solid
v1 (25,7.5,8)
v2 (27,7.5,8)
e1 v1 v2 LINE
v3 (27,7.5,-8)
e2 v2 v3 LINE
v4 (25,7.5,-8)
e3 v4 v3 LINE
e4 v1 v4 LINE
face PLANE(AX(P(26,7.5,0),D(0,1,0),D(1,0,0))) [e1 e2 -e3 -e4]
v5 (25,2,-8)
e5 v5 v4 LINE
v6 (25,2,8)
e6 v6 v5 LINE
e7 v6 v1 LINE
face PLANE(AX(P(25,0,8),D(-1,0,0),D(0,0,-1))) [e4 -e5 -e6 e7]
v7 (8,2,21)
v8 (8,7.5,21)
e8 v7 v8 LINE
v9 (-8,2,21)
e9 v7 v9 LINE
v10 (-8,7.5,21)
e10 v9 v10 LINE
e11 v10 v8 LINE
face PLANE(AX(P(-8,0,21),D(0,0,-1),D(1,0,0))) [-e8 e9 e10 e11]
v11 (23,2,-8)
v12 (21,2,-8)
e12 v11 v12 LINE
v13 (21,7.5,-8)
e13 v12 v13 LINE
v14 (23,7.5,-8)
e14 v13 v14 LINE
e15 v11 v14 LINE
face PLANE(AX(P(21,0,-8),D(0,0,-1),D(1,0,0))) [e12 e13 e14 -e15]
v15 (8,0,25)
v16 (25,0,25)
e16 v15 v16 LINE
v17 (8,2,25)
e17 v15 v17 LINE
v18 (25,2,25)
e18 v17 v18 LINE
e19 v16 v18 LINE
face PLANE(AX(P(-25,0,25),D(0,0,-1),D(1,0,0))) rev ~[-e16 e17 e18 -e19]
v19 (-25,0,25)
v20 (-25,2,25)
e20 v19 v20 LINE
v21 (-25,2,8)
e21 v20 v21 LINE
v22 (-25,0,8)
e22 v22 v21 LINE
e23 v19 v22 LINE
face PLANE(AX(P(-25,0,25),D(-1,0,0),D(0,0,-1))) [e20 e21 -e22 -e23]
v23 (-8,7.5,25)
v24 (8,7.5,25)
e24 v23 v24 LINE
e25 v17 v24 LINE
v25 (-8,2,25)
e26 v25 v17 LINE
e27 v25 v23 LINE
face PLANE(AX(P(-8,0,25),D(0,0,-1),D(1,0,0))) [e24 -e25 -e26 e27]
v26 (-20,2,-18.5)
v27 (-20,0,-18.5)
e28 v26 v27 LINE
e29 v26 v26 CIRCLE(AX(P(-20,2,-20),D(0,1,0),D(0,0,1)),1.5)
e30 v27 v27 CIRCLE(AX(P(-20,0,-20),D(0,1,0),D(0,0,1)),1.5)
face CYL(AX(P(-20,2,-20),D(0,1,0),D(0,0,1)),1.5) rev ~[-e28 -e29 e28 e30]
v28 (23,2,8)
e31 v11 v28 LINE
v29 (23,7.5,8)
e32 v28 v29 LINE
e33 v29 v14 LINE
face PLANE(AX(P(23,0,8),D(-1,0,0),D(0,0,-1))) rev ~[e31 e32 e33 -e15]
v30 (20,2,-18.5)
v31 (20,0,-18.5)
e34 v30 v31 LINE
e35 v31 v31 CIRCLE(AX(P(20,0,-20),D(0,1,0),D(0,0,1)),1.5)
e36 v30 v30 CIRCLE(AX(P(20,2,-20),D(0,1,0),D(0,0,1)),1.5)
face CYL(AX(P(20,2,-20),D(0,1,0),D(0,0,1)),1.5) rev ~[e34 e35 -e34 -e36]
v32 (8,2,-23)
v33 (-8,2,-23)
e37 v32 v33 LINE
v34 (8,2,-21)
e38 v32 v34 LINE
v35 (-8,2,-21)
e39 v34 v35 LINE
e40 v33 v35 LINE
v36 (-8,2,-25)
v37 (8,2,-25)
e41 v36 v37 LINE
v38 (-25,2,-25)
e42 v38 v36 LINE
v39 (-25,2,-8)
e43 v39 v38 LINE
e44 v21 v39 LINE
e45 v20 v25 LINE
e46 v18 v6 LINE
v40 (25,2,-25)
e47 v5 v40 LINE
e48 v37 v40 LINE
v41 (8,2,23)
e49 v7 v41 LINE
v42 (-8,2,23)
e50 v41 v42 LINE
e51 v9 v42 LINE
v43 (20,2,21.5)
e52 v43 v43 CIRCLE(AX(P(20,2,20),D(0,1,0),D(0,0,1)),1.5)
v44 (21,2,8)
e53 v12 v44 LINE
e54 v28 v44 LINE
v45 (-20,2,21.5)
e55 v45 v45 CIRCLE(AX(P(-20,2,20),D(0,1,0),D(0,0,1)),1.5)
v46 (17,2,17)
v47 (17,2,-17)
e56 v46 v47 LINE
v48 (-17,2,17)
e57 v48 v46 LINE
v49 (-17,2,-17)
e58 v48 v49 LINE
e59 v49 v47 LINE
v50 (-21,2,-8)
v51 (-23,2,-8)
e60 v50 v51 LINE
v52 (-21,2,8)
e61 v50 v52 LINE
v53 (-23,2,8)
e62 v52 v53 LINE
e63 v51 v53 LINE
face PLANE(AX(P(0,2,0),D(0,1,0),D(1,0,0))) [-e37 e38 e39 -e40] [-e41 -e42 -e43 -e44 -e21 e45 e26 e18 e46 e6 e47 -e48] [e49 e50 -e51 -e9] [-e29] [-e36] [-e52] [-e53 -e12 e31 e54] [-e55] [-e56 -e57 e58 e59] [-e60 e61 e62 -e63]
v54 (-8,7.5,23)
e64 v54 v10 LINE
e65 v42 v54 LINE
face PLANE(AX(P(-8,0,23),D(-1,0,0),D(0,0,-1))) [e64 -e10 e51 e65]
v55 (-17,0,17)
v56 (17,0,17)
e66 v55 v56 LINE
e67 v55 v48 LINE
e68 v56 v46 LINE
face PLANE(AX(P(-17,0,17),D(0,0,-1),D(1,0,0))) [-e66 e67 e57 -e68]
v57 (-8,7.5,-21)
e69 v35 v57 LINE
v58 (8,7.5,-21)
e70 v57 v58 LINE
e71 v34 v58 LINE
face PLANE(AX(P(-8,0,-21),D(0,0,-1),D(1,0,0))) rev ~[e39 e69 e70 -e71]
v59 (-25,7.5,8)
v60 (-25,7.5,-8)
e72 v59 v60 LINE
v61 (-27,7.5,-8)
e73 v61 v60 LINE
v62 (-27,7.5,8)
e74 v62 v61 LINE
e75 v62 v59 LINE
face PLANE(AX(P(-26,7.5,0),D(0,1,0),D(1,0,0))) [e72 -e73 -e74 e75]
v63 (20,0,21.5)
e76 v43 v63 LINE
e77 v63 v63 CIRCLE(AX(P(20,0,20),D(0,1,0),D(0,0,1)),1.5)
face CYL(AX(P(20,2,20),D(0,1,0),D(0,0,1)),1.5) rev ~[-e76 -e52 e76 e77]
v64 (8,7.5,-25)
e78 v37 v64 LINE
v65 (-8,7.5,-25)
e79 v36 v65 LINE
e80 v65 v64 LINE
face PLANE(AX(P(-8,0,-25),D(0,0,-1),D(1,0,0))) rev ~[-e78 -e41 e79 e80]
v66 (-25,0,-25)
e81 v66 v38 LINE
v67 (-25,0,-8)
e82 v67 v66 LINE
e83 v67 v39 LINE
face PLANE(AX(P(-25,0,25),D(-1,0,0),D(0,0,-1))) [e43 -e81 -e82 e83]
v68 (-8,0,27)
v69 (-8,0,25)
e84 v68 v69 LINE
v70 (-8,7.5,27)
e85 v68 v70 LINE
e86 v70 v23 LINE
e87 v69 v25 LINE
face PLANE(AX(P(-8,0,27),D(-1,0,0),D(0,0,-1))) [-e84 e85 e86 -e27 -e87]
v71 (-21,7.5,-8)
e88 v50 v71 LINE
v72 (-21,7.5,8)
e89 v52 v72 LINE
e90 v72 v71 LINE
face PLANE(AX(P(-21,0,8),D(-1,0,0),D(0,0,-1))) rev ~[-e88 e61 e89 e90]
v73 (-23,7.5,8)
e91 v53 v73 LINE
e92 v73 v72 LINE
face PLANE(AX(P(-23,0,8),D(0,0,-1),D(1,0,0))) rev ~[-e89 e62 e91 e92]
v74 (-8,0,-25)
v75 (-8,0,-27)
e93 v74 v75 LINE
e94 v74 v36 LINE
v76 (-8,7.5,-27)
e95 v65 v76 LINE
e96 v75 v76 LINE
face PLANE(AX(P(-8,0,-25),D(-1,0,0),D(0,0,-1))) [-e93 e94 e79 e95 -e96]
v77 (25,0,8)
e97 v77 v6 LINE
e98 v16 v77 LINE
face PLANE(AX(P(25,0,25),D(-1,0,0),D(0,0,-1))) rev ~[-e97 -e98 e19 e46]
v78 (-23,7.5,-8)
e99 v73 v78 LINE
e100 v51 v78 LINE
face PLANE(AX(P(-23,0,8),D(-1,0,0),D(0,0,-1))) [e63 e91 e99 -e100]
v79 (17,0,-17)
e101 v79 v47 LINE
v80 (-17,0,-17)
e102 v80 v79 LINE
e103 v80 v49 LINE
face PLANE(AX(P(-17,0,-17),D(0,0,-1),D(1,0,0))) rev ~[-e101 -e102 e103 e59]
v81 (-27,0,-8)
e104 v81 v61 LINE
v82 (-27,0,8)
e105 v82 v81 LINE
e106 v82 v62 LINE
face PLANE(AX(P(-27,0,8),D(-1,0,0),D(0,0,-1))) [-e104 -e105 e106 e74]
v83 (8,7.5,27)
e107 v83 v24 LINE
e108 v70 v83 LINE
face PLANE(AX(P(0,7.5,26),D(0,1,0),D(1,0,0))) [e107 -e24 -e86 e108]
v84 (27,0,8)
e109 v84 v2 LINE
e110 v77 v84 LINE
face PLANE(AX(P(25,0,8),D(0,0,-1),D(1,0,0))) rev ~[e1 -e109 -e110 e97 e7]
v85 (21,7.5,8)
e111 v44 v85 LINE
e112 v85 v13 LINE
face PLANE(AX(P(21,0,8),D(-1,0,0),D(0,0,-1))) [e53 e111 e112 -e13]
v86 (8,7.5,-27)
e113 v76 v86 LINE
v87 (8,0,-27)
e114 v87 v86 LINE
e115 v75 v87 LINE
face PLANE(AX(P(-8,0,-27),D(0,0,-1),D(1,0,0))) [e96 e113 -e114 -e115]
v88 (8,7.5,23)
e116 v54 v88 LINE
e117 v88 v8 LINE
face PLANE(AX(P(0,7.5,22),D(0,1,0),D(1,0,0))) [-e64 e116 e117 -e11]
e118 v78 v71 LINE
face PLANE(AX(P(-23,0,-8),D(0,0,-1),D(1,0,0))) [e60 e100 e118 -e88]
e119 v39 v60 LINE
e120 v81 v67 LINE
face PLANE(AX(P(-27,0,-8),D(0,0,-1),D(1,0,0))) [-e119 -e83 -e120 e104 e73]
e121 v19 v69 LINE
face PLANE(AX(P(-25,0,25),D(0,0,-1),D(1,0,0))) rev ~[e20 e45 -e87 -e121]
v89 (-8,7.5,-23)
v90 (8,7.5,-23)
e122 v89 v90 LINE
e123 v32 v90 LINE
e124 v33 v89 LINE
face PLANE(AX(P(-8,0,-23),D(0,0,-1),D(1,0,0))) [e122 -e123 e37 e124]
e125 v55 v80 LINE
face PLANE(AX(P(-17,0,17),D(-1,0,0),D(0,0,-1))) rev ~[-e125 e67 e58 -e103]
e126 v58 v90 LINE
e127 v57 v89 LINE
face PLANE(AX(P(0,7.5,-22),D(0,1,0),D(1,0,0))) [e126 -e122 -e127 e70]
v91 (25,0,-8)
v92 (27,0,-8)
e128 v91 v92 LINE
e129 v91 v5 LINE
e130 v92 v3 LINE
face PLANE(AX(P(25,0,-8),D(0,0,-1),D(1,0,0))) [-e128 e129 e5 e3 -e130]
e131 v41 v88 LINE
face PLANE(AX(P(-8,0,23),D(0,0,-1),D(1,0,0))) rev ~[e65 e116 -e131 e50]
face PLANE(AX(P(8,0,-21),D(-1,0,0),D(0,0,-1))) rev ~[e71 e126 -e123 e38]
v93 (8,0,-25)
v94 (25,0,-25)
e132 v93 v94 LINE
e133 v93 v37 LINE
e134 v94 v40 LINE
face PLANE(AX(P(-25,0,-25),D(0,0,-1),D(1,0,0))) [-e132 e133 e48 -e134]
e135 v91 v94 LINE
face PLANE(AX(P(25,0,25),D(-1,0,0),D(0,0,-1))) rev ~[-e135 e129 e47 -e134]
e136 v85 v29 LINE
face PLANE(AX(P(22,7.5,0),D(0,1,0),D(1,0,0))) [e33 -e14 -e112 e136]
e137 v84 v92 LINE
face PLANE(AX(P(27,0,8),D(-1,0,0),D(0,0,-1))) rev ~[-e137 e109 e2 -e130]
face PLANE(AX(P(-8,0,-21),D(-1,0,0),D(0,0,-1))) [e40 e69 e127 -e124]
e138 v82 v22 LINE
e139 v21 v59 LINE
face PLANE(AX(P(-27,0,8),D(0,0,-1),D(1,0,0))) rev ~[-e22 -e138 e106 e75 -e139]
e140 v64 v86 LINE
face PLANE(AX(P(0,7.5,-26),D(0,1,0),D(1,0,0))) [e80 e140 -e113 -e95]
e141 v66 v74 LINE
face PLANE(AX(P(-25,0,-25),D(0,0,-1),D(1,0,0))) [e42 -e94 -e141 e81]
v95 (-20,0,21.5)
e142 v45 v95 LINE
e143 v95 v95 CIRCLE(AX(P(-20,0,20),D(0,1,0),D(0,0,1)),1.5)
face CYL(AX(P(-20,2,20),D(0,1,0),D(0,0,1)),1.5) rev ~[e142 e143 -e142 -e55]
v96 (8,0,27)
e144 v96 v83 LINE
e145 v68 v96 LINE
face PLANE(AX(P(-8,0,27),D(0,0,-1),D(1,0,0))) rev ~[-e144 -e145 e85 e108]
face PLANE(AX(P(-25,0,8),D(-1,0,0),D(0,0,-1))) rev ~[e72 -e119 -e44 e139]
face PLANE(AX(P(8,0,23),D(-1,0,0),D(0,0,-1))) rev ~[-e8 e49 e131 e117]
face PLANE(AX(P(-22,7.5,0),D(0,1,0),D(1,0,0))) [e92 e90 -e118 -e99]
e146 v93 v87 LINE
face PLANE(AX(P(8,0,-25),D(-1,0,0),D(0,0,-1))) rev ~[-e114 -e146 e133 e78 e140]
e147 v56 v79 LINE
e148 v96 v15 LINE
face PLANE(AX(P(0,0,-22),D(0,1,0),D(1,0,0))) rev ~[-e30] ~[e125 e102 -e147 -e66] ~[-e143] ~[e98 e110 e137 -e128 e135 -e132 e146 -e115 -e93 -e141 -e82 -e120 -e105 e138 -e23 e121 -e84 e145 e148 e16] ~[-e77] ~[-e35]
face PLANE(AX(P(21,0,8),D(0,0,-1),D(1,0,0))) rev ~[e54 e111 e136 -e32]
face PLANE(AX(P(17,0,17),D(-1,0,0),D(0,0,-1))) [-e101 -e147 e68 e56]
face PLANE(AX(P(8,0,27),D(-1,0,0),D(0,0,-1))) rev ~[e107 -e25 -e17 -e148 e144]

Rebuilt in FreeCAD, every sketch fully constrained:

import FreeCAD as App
import Part
import Sketcher
Q = App.Units.Quantity

doc = App.newDocument("Part")
body = doc.addObject("PartDesign::Body", "Body")

# Sketch on XZ plane
sketch1 = body.newObject("Sketcher::SketchObject", "Sketch")
sketch1.AttachmentSupport = (doc.getObject("XZ_Plane"), [""])
sketch1.MapMode = "FlatFace"
sketch1.addGeometry([
    Part.LineSegment(App.Vector(-25, -25, 0), App.Vector(-25, 25, 0)),  # 0
    Part.LineSegment(App.Vector(-25, 25, 0), App.Vector(25, 25, 0)),  # 1
    Part.LineSegment(App.Vector(25, 25, 0), App.Vector(25, -25, 0)),  # 2
    Part.LineSegment(App.Vector(25, -25, 0), App.Vector(-25, -25, 0)),  # 3
    Part.LineSegment(App.Vector(17, 17, 0), App.Vector(-17, 17, 0)),  # 4
    Part.LineSegment(App.Vector(-17, 17, 0), App.Vector(-17, -17, 0)),  # 5
    Part.LineSegment(App.Vector(-17, -17, 0), App.Vector(17, -17, 0)),  # 6
    Part.LineSegment(App.Vector(17, -17, 0), App.Vector(17, 17, 0)),  # 7
], False)
sketch1.addConstraint([
    Sketcher.Constraint("Coincident", 0, 2, 1, 1),
    Sketcher.Constraint("Coincident", 1, 2, 2, 1),
    Sketcher.Constraint("Coincident", 2, 2, 3, 1),
    Sketcher.Constraint("Coincident", 3, 2, 0, 1),
    Sketcher.Constraint("Coincident", 4, 2, 5, 1),
    Sketcher.Constraint("Coincident", 5, 2, 6, 1),
    Sketcher.Constraint("Coincident", 6, 2, 7, 1),
    Sketcher.Constraint("Coincident", 7, 2, 4, 1),
    Sketcher.Constraint("Vertical", 0),
    Sketcher.Constraint("Horizontal", 1),
    Sketcher.Constraint("Vertical", 2),
    Sketcher.Constraint("Horizontal", 3),
    Sketcher.Constraint("Horizontal", 4),
    Sketcher.Constraint("Vertical", 5),
    Sketcher.Constraint("Horizontal", 6),
    Sketcher.Constraint("Vertical", 7),
    Sketcher.Constraint("Symmetric", 0, 2, 2, 2, -1, 1),
    Sketcher.Constraint("Symmetric", 4, 2, 6, 2, -1, 1),
    Sketcher.Constraint("Equal", 3, 0),
    Sketcher.Constraint("Equal", 6, 5),
    Sketcher.Constraint("DistanceX", 1, 1, 1, 2, Q("50 mm")),
    Sketcher.Constraint("DistanceX", 4, 2, 4, 1, Q("34 mm")),
])
pad1 = body.newObject("PartDesign::Pad", "Pad")
pad1.Profile = sketch1
pad1.Length = 2
pad1.Reversed = True

# Sketch on XZ plane
sketch2 = body.newObject("Sketcher::SketchObject", "Sketch001")
sketch2.AttachmentSupport = (doc.getObject("XZ_Plane"), [""])
sketch2.MapMode = "FlatFace"
sketch2.AttachmentOffset = App.Placement(App.Vector(0, 0, -2), App.Rotation())
sketch2.addGeometry([
    Part.Circle(App.Vector(-20, -20, 0), App.Vector(0, 0, 1), 1.5),
    Part.Circle(App.Vector(20, -20, 0), App.Vector(0, 0, 1), 1.5),
    Part.Circle(App.Vector(20, 20, 0), App.Vector(0, 0, 1), 1.5),
    Part.Circle(App.Vector(-20, 20, 0), App.Vector(0, 0, 1), 1.5),
], False)
sketch2.addConstraint([
    Sketcher.Constraint("Equal", 0, 1),
    Sketcher.Constraint("Equal", 1, 2),
    Sketcher.Constraint("Equal", 2, 3),
    Sketcher.Constraint("Symmetric", 0, 3, 2, 3, -1, 1),
    Sketcher.Constraint("Symmetric", 1, 3, 3, 3, -1, 1),
    Sketcher.Constraint("Symmetric", 0, 3, 1, 3, -2),
    Sketcher.Constraint("Diameter", 0, Q("3 mm")),
    Sketcher.Constraint("DistanceX", 0, 3, -1, 1, Q("20 mm")),
    Sketcher.Constraint("DistanceY", 0, 3, -1, 1, Q("20 mm")),
])
pocket1 = body.newObject("PartDesign::Pocket", "Pocket")
pocket1.Profile = sketch2
pocket1.Length = 2
pocket1.Reversed = True

# Sketch on XZ plane
sketch3 = body.newObject("Sketcher::SketchObject", "Sketch002")
sketch3.AttachmentSupport = (doc.getObject("XZ_Plane"), [""])
sketch3.MapMode = "FlatFace"
sketch3.addGeometry([
    Part.LineSegment(App.Vector(-8, -23, 0), App.Vector(-8, -21, 0)),  # 0
    Part.LineSegment(App.Vector(-8, -21, 0), App.Vector(8, -21, 0)),  # 1
    Part.LineSegment(App.Vector(8, -21, 0), App.Vector(8, -23, 0)),  # 2
    Part.LineSegment(App.Vector(8, -23, 0), App.Vector(-8, -23, 0)),  # 3
    Part.LineSegment(App.Vector(-27, -8, 0), App.Vector(-27, 8, 0)),  # 4
    Part.LineSegment(App.Vector(-27, 8, 0), App.Vector(-25, 8, 0)),  # 5
    Part.LineSegment(App.Vector(-25, 8, 0), App.Vector(-25, -8, 0)),  # 6
    Part.LineSegment(App.Vector(-25, -8, 0), App.Vector(-27, -8, 0)),  # 7
    Part.LineSegment(App.Vector(-23, -8, 0), App.Vector(-23, 8, 0)),  # 8
    Part.LineSegment(App.Vector(-23, 8, 0), App.Vector(-21, 8, 0)),  # 9
    Part.LineSegment(App.Vector(-21, 8, 0), App.Vector(-21, -8, 0)),  # 10
    Part.LineSegment(App.Vector(-21, -8, 0), App.Vector(-23, -8, 0)),  # 11
    Part.LineSegment(App.Vector(-8, -27, 0), App.Vector(-8, -25, 0)),  # 12
    Part.LineSegment(App.Vector(-8, -25, 0), App.Vector(8, -25, 0)),  # 13
    Part.LineSegment(App.Vector(8, -25, 0), App.Vector(8, -27, 0)),  # 14
    Part.LineSegment(App.Vector(8, -27, 0), App.Vector(-8, -27, 0)),  # 15
    Part.LineSegment(App.Vector(21, -8, 0), App.Vector(21, 8, 0)),  # 16
    Part.LineSegment(App.Vector(21, 8, 0), App.Vector(23, 8, 0)),  # 17
    Part.LineSegment(App.Vector(23, 8, 0), App.Vector(23, -8, 0)),  # 18
    Part.LineSegment(App.Vector(23, -8, 0), App.Vector(21, -8, 0)),  # 19
    Part.LineSegment(App.Vector(25, -8, 0), App.Vector(25, 8, 0)),  # 20
    Part.LineSegment(App.Vector(25, 8, 0), App.Vector(27, 8, 0)),  # 21
    Part.LineSegment(App.Vector(27, 8, 0), App.Vector(27, -8, 0)),  # 22
    Part.LineSegment(App.Vector(27, -8, 0), App.Vector(25, -8, 0)),  # 23
    Part.LineSegment(App.Vector(-8, 21, 0), App.Vector(-8, 23, 0)),  # 24
    Part.LineSegment(App.Vector(-8, 23, 0), App.Vector(8, 23, 0)),  # 25
    Part.LineSegment(App.Vector(8, 23, 0), App.Vector(8, 21, 0)),  # 26
    Part.LineSegment(App.Vector(8, 21, 0), App.Vector(-8, 21, 0)),  # 27
    Part.LineSegment(App.Vector(-8, 25, 0), App.Vector(-8, 27, 0)),  # 28
    Part.LineSegment(App.Vector(-8, 27, 0), App.Vector(8, 27, 0)),  # 29
    Part.LineSegment(App.Vector(8, 27, 0), App.Vector(8, 25, 0)),  # 30
    Part.LineSegment(App.Vector(8, 25, 0), App.Vector(-8, 25, 0)),  # 31
], False)
sketch3.addConstraint([
    Sketcher.Constraint("Coincident", 0, 2, 1, 1),
    Sketcher.Constraint("Coincident", 1, 2, 2, 1),
    Sketcher.Constraint("Coincident", 2, 2, 3, 1),
    Sketcher.Constraint("Coincident", 3, 2, 0, 1),
    Sketcher.Constraint("Coincident", 4, 2, 5, 1),
    Sketcher.Constraint("Coincident", 5, 2, 6, 1),
    Sketcher.Constraint("Coincident", 6, 2, 7, 1),
    Sketcher.Constraint("Coincident", 7, 2, 4, 1),
    Sketcher.Constraint("Coincident", 8, 2, 9, 1),
    Sketcher.Constraint("Coincident", 9, 2, 10, 1),
    Sketcher.Constraint("Coincident", 10, 2, 11, 1),
    Sketcher.Constraint("Coincident", 11, 2, 8, 1),
    Sketcher.Constraint("Coincident", 12, 2, 13, 1),
    Sketcher.Constraint("Coincident", 13, 2, 14, 1),
    Sketcher.Constraint("Coincident", 14, 2, 15, 1),
    Sketcher.Constraint("Coincident", 15, 2, 12, 1),
    Sketcher.Constraint("Coincident", 16, 2, 17, 1),
    Sketcher.Constraint("Coincident", 17, 2, 18, 1),
    Sketcher.Constraint("Coincident", 18, 2, 19, 1),
    Sketcher.Constraint("Coincident", 19, 2, 16, 1),
    Sketcher.Constraint("Coincident", 20, 2, 21, 1),
    Sketcher.Constraint("Coincident", 21, 2, 22, 1),
    Sketcher.Constraint("Coincident", 22, 2, 23, 1),
    Sketcher.Constraint("Coincident", 23, 2, 20, 1),
    Sketcher.Constraint("Coincident", 24, 2, 25, 1),
    Sketcher.Constraint("Coincident", 25, 2, 26, 1),
    Sketcher.Constraint("Coincident", 26, 2, 27, 1),
    Sketcher.Constraint("Coincident", 27, 2, 24, 1),
    Sketcher.Constraint("Coincident", 28, 2, 29, 1),
    Sketcher.Constraint("Coincident", 29, 2, 30, 1),
    Sketcher.Constraint("Coincident", 30, 2, 31, 1),
    Sketcher.Constraint("Coincident", 31, 2, 28, 1),
    Sketcher.Constraint("Vertical", 0),
    Sketcher.Constraint("Horizontal", 1),
    Sketcher.Constraint("Vertical", 2),
    Sketcher.Constraint("Horizontal", 3),
    Sketcher.Constraint("Vertical", 4),
    Sketcher.Constraint("Horizontal", 5),
    Sketcher.Constraint("Vertical", 6),
    Sketcher.Constraint("Horizontal", 7),
    Sketcher.Constraint("Vertical", 8),
    Sketcher.Constraint("Horizontal", 9),
    Sketcher.Constraint("Vertical", 10),
    Sketcher.Constraint("Horizontal", 11),
    Sketcher.Constraint("Vertical", 12),
    Sketcher.Constraint("Horizontal", 13),
    Sketcher.Constraint("Vertical", 14),
    Sketcher.Constraint("Horizontal", 15),
    Sketcher.Constraint("Vertical", 16),
    Sketcher.Constraint("Horizontal", 17),
    Sketcher.Constraint("Vertical", 18),
    Sketcher.Constraint("Horizontal", 19),
    Sketcher.Constraint("Vertical", 20),
    Sketcher.Constraint("Horizontal", 21),
    Sketcher.Constraint("Vertical", 22),
    Sketcher.Constraint("Horizontal", 23),
    Sketcher.Constraint("Vertical", 24),
    Sketcher.Constraint("Horizontal", 25),
    Sketcher.Constraint("Vertical", 26),
    Sketcher.Constraint("Horizontal", 27),
    Sketcher.Constraint("Vertical", 28),
    Sketcher.Constraint("Horizontal", 29),
    Sketcher.Constraint("Vertical", 30),
    Sketcher.Constraint("Horizontal", 31),
    Sketcher.Constraint("Symmetric", 10, 2, 16, 2, -1, 1),
    Sketcher.Constraint("Symmetric", 8, 2, 18, 2, -1, 1),
    Sketcher.Constraint("Symmetric", 6, 2, 20, 2, -1, 1),
    Sketcher.Constraint("Symmetric", 4, 2, 22, 2, -1, 1),
    Sketcher.Constraint("Symmetric", 2, 2, 24, 2, -1, 1),
    Sketcher.Constraint("Symmetric", 0, 2, 26, 2, -1, 1),
    Sketcher.Constraint("Symmetric", 14, 2, 28, 2, -1, 1),
    Sketcher.Constraint("Symmetric", 12, 2, 30, 2, -1, 1),
    Sketcher.Constraint("Horizontal", 5, 2, 8, 2),
    Sketcher.Constraint("Horizontal", 7, 2, 10, 2),
    Sketcher.Constraint("Horizontal", 9, 2, 16, 2),
    Sketcher.Constraint("Vertical", 3, 2, 12, 2),
    Sketcher.Constraint("Vertical", 2, 2, 13, 2),
    Sketcher.Constraint("Vertical", 15, 2, 24, 2),
    Sketcher.Constraint("Equal", 7, 9),
    Sketcher.Constraint("Equal", 23, 0),
    Sketcher.Constraint("Equal", 31, 4),
    Sketcher.Constraint("Equal", 2, 12),
    Sketcher.Constraint("DistanceX", 1, 1, 1, 2, Q("16 mm")),
    Sketcher.Constraint("DistanceX", 5, 1, 5, 2, Q("2 mm")),
    Sketcher.Constraint("DistanceY", 0, 2, -1, 1, Q("21 mm")),
    Sketcher.Constraint("DistanceX", 4, 2, -1, 1, Q("27 mm")),
    Sketcher.Constraint("DistanceX", 8, 2, -1, 1, Q("23 mm")),
    Sketcher.Constraint("DistanceY", 12, 2, -1, 1, Q("25 mm")),
])
pad2 = body.newObject("PartDesign::Pad", "Pad001")
pad2.Profile = sketch3
pad2.Length = 7.5
pad2.Reversed = True

doc.recompute()
